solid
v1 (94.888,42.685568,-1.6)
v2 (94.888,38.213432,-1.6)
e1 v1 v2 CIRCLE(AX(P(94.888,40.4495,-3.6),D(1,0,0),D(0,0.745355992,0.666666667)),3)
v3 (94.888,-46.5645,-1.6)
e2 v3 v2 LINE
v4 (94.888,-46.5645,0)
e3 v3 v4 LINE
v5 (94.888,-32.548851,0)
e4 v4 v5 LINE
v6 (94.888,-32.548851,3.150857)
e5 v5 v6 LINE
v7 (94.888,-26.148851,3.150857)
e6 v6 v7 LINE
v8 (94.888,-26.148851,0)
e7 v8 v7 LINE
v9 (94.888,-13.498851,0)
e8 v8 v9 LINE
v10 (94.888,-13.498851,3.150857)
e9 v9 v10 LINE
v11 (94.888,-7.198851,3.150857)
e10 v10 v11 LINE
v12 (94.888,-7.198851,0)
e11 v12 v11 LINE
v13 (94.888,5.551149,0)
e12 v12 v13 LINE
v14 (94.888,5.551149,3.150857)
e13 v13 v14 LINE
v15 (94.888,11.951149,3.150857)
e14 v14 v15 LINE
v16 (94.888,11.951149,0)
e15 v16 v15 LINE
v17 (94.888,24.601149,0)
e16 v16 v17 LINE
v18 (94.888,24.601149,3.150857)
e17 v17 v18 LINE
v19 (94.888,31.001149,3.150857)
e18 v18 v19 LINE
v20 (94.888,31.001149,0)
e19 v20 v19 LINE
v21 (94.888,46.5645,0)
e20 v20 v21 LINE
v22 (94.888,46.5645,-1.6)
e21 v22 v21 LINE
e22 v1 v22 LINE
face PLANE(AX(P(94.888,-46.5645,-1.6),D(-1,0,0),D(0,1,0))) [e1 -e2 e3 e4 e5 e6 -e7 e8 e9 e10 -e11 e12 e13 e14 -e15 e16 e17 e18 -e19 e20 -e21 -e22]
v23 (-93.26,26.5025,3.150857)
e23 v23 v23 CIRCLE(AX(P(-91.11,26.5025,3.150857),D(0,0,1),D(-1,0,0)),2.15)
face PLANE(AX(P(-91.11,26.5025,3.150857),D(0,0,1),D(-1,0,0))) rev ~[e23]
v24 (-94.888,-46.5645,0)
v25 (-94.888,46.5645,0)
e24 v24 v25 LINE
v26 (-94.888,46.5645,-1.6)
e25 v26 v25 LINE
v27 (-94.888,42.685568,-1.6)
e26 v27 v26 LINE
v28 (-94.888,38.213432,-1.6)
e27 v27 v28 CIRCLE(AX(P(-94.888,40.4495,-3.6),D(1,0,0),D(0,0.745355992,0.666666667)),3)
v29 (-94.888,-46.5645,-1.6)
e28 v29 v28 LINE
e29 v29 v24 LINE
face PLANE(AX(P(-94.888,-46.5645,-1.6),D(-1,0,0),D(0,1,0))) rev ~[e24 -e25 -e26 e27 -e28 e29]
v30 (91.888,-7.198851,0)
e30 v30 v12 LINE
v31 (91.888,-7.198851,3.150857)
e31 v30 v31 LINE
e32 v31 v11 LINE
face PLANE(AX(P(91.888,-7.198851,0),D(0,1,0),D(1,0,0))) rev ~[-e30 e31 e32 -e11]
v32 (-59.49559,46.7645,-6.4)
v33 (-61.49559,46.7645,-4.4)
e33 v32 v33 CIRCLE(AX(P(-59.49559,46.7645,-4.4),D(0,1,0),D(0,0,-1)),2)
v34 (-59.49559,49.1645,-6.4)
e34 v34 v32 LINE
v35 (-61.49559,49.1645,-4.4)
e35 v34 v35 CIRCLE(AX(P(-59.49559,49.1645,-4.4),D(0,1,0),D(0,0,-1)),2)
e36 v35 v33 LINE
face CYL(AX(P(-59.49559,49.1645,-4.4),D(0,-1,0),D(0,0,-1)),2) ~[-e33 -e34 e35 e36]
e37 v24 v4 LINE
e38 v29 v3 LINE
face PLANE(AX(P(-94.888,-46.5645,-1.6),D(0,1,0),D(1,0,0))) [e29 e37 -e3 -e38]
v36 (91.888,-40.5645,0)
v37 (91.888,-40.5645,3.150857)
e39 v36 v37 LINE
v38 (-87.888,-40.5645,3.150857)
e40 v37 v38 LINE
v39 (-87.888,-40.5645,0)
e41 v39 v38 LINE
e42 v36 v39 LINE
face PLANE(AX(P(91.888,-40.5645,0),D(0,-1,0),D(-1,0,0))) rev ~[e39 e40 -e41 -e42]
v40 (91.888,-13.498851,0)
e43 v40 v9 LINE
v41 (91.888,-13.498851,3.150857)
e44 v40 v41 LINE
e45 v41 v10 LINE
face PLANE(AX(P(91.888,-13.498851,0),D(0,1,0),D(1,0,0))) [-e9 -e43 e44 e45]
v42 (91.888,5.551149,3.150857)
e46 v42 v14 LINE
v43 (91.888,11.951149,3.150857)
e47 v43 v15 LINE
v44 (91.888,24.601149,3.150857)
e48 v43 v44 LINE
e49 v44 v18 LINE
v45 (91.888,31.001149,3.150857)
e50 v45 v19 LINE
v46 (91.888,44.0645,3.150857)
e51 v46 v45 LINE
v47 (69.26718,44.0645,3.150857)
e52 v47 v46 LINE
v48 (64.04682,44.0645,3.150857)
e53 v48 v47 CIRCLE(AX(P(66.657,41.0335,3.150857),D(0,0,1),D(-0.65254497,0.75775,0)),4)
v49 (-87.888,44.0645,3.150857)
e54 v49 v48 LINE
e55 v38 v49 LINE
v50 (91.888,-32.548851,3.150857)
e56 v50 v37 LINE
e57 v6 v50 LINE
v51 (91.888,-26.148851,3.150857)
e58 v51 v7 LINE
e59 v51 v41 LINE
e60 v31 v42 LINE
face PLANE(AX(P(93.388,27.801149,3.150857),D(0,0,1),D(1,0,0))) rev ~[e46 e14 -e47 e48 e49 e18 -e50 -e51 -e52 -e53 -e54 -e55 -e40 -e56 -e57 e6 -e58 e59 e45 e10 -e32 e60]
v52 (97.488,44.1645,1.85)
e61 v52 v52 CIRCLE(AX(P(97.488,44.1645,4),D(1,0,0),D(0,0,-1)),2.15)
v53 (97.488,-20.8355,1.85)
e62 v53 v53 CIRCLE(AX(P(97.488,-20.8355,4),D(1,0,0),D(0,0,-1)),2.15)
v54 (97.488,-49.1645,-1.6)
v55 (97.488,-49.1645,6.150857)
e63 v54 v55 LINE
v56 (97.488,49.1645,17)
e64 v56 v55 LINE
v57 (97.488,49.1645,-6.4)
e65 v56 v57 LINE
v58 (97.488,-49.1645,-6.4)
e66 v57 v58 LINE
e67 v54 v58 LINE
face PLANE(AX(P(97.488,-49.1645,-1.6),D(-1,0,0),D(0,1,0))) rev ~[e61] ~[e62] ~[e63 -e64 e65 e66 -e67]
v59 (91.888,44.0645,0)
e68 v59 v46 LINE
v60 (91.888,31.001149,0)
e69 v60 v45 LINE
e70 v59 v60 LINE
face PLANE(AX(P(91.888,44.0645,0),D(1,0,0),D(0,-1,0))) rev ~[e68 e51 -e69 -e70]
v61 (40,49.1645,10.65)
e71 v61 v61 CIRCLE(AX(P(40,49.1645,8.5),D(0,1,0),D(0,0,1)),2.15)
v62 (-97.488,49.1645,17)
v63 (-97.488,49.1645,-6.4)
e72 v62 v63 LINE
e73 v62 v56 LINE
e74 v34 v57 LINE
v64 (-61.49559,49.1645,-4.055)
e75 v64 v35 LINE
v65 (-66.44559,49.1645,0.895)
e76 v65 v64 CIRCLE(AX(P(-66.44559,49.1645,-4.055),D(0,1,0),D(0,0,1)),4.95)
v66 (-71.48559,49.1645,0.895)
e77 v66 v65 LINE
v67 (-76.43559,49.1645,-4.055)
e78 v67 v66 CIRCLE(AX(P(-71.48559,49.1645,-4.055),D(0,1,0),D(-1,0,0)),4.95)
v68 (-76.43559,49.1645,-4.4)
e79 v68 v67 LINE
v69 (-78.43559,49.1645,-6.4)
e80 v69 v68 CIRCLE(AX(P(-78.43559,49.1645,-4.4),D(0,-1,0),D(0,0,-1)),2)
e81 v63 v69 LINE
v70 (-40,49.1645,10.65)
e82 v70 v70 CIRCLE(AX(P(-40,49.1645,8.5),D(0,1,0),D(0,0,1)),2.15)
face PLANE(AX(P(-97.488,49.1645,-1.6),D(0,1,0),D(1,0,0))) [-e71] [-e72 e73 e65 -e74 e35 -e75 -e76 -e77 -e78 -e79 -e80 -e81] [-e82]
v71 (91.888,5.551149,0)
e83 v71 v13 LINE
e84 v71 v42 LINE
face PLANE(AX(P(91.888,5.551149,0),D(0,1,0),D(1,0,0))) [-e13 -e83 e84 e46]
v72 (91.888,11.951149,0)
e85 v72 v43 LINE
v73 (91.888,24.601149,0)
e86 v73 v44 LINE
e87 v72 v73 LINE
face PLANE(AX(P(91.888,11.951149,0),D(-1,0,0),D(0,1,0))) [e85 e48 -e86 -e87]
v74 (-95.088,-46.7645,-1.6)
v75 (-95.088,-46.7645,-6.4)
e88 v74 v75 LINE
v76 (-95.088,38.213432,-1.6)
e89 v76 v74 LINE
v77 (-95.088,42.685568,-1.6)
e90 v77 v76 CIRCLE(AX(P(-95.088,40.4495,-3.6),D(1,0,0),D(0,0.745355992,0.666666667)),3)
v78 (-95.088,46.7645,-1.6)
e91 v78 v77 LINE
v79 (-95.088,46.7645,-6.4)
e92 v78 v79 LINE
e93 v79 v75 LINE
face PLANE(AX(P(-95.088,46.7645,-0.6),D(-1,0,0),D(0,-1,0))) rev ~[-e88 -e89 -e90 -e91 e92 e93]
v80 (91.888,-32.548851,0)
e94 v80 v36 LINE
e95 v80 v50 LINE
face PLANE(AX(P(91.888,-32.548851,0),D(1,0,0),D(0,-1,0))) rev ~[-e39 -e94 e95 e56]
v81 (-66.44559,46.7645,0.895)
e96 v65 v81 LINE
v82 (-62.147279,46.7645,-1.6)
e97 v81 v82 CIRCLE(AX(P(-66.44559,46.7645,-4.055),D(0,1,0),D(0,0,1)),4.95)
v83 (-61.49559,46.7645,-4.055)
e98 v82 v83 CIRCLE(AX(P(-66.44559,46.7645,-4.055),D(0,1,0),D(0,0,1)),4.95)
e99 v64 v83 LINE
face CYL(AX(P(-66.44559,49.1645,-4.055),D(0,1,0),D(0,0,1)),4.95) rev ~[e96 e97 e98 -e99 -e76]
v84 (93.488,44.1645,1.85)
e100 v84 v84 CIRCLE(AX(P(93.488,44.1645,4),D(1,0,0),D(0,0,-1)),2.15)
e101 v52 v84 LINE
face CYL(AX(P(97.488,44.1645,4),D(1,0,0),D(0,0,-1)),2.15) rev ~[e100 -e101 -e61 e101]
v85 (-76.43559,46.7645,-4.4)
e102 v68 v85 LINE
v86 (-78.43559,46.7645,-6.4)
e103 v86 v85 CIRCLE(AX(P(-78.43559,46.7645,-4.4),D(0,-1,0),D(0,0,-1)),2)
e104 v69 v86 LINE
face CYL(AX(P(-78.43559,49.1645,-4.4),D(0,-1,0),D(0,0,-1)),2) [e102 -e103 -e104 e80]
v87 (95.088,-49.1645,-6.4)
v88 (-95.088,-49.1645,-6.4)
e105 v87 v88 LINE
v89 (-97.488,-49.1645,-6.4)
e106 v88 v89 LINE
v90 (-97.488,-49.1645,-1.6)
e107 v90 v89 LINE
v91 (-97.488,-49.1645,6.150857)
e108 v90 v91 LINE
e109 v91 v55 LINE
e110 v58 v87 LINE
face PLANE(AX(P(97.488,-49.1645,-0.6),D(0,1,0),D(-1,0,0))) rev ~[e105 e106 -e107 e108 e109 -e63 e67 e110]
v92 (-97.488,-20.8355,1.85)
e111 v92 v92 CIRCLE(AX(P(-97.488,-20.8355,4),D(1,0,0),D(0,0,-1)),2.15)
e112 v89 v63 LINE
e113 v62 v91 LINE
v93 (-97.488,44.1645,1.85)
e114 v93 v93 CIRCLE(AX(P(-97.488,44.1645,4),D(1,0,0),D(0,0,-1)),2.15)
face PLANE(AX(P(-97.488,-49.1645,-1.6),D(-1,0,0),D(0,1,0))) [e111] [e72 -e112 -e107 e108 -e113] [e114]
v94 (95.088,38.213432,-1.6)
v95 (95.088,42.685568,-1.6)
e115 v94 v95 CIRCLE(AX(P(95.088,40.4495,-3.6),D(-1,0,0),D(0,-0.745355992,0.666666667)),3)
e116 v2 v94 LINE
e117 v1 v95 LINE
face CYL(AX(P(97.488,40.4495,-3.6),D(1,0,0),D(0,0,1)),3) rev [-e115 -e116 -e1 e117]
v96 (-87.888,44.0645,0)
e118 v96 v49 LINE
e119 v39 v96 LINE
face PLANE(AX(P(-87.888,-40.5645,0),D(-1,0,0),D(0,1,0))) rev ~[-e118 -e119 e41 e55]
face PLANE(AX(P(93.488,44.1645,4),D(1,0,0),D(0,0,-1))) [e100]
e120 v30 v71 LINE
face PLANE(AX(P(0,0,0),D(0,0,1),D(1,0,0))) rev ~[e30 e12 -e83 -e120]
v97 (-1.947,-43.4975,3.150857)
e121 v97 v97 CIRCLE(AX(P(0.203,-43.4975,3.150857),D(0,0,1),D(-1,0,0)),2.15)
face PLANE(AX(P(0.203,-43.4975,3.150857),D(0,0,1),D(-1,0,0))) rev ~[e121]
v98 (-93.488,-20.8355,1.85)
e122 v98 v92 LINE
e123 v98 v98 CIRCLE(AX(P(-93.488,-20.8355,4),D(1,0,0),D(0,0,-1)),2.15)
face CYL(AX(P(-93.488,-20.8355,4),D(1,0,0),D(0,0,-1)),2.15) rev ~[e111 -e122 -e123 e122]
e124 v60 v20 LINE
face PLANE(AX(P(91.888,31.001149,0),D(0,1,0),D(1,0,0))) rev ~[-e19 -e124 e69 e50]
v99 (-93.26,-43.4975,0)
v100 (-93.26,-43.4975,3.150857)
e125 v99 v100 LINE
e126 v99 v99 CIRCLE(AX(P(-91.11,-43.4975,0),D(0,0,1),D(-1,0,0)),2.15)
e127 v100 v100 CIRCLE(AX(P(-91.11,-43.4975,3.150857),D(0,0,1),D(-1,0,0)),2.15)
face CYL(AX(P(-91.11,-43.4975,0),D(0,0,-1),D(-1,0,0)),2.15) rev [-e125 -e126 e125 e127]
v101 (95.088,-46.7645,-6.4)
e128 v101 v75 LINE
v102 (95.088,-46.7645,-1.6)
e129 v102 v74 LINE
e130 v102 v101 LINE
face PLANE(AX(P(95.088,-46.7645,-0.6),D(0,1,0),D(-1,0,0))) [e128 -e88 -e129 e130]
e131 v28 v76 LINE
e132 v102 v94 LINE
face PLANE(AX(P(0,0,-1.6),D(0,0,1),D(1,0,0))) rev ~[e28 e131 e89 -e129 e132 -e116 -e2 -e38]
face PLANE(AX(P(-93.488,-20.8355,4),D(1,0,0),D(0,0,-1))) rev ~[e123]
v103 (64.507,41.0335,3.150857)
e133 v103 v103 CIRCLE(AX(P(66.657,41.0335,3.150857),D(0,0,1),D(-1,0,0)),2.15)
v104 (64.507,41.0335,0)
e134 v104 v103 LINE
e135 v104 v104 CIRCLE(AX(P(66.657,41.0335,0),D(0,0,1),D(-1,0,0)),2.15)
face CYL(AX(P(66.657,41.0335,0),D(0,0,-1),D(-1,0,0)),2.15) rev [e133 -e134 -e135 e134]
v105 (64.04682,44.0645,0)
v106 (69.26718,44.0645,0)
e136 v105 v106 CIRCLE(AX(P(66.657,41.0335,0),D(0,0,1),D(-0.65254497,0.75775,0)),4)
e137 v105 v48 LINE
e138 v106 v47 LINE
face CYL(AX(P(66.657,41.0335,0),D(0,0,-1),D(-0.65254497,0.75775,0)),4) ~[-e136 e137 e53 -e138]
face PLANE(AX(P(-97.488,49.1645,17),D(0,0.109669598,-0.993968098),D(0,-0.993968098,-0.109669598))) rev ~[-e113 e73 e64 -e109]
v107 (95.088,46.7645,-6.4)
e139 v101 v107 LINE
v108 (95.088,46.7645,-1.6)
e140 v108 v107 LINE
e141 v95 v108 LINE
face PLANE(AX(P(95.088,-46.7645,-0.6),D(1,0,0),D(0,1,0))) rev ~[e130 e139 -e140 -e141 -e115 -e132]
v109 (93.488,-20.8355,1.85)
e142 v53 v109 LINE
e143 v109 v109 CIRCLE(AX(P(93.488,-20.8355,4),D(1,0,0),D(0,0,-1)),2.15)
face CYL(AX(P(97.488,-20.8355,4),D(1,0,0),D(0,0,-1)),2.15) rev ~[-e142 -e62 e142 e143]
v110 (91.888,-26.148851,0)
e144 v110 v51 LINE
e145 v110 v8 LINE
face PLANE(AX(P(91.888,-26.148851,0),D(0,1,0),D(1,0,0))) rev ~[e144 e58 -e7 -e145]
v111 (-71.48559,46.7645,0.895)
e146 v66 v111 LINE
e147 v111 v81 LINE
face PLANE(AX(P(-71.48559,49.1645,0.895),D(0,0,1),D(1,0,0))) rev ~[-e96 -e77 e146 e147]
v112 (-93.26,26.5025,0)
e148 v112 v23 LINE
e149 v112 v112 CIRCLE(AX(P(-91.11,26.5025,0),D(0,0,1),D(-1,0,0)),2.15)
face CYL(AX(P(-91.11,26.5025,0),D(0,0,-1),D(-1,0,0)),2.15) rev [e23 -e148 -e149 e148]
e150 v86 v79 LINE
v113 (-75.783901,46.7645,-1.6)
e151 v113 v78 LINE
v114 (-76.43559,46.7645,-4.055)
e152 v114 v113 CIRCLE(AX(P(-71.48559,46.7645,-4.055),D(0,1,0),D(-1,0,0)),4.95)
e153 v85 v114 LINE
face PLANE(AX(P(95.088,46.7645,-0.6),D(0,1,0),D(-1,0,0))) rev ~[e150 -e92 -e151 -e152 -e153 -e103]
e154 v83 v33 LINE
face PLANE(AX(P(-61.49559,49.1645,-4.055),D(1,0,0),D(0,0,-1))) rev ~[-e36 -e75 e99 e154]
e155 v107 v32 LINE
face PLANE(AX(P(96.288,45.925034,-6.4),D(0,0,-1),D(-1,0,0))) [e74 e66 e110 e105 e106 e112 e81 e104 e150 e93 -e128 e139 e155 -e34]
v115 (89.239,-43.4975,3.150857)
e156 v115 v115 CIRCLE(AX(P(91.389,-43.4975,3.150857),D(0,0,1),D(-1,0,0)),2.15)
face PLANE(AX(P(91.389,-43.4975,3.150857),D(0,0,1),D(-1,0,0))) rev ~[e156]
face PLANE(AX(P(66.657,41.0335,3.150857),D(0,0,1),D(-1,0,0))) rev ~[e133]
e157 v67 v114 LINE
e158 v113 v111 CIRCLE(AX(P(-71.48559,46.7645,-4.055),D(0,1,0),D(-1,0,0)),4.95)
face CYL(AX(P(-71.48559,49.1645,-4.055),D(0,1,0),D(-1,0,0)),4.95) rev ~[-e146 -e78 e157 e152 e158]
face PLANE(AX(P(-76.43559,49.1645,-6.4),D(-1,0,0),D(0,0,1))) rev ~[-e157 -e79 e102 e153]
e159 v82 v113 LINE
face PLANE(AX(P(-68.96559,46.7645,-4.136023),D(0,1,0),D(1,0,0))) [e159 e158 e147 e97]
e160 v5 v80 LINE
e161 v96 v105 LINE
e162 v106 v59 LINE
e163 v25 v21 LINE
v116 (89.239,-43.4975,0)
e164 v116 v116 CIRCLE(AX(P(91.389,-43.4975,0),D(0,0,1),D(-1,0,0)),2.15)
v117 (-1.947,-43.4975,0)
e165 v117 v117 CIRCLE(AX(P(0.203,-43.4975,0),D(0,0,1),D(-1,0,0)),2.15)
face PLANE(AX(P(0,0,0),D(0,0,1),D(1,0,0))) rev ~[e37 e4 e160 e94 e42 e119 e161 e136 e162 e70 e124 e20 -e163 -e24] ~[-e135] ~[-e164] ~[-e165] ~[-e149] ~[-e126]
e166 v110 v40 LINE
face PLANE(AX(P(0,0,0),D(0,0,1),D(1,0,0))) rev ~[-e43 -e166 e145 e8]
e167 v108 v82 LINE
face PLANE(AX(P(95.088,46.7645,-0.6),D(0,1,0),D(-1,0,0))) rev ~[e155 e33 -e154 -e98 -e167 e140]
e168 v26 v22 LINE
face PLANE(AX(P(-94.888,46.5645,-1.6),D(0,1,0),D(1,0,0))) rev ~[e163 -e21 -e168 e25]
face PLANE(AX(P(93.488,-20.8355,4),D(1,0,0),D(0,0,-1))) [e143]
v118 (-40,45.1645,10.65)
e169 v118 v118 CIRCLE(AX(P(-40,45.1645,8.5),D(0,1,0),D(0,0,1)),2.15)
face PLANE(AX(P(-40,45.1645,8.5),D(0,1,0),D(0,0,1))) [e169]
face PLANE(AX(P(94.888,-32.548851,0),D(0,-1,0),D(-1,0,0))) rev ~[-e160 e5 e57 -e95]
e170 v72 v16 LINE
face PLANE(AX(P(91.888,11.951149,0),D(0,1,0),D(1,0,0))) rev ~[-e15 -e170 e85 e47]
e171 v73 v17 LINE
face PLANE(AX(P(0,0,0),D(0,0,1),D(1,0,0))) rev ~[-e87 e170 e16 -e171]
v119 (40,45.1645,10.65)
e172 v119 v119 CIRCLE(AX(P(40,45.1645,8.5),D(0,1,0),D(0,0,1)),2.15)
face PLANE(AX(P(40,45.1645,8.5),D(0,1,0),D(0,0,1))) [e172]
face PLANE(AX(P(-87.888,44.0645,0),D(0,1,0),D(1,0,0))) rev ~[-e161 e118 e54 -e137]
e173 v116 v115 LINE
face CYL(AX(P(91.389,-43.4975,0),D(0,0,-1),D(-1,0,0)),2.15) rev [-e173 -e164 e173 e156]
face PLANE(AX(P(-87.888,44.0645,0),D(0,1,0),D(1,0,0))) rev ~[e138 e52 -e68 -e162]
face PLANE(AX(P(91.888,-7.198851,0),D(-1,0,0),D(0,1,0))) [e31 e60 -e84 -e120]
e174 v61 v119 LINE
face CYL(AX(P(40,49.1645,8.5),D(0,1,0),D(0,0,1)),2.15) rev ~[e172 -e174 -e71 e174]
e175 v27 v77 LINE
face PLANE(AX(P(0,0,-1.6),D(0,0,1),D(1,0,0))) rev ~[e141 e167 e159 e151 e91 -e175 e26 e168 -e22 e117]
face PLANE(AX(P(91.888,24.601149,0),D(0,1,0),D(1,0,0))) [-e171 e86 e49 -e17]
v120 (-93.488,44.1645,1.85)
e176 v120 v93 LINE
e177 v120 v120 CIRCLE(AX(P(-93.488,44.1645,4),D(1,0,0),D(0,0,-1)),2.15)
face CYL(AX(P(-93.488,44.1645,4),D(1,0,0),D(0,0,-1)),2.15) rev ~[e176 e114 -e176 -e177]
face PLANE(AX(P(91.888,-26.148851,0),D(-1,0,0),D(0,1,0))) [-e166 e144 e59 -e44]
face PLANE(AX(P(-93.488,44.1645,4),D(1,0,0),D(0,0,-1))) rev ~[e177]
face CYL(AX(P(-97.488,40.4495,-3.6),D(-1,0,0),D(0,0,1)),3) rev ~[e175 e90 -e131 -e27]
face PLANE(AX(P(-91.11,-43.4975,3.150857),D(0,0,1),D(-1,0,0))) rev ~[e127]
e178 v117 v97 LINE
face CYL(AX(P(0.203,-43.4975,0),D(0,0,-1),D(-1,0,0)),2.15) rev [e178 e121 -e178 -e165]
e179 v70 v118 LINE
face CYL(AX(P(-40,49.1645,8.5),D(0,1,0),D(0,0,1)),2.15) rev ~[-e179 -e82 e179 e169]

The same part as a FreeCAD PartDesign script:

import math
import FreeCAD as App
import Part
import Sketcher

V = App.Vector
Q = App.Units.Quantity


def edges_at(feature, points):
    """Names of the edges that pass closest to the given points."""
    edges = feature.Shape.Edges
    near = lambda p: min(range(len(edges)), key=lambda i: edges[i].distToShape(Part.Vertex(*p))[0])
    return sorted({f"Edge{near(p) + 1}" for p in points})


def add_polygon(sketch, points):
    """Adds a closed chain of lines whose ends are joined by coincident constraints."""
    first, n = sketch.GeometryCount, len(points)
    for a, b in zip(points, points[1:] + points[:1]):
        sketch.addGeometry(Part.LineSegment(App.Vector(*a, 0), App.Vector(*b, 0)), False)
    for i in range(n):
        sketch.addConstraint(Sketcher.Constraint("Coincident", first + i, 2, first + (i + 1) % n, 1))

doc = App.newDocument("Part")
body = doc.addObject("PartDesign::Body", "Body")
body.AllowCompound = True

sketch1 = body.newObject("Sketcher::SketchObject", "Sketch")
sketch1.AttachmentSupport = (doc.getObject("XY_Plane"), [""])
sketch1.MapMode = "FlatFace"
sketch1.addGeometry(Part.LineSegment(V(94.888, 46.5645, 0), V(-94.888, 46.5645, 0)), False)
sketch1.addGeometry(Part.LineSegment(V(-94.888, 46.5645, 0), V(-94.888, -46.5645, 0)), False)
sketch1.addGeometry(Part.LineSegment(V(-94.888, -46.5645, 0), V(94.888, -46.5645, 0)), False)
sketch1.addGeometry(Part.LineSegment(V(94.888, -46.5645, 0), V(94.888, -32.548851, 0)), False)
sketch1.addGeometry(Part.LineSegment(V(94.888, -32.548851, 0), V(91.888, -32.548851, 0)), False)
sketch1.addGeometry(Part.LineSegment(V(91.888, -32.548851, 0), V(91.888, -40.5645, 0)), False)
sketch1.addGeometry(Part.LineSegment(V(91.888, -40.5645, 0), V(-87.888, -40.5645, 0)), False)
sketch1.addGeometry(Part.LineSegment(V(-87.888, -40.5645, 0), V(-87.888, 44.0645, 0)), False)
sketch1.addGeometry(Part.LineSegment(V(-87.888, 44.0645, 0), V(64.04682, 44.0645, 0)), False)
sketch1.addGeometry(Part.ArcOfCircle(Part.Circle(V(66.657, 41.0335, 0), V(0, 0, 1), 4), math.radians(130.733758), math.radians(409.266242)), False)
sketch1.addGeometry(Part.LineSegment(V(69.26718, 44.0645, 0), V(91.888, 44.0645, 0)), False)
sketch1.addGeometry(Part.LineSegment(V(91.888, 44.0645, 0), V(91.888, 31.001149, 0)), False)
sketch1.addGeometry(Part.LineSegment(V(91.888, 31.001149, 0), V(94.888, 31.001149, 0)), False)
sketch1.addGeometry(Part.LineSegment(V(94.888, 31.001149, 0), V(94.888, 46.5645, 0)), False)
sketch1.addGeometry(Part.Circle(V(-91.11, -43.4975, 0), V(0, 0, 1), 2.15), False)
sketch1.addGeometry(Part.Circle(V(0.203, -43.4975, 0), V(0, 0, 1), 2.15), False)
sketch1.addGeometry(Part.Circle(V(91.389, -43.4975, 0), V(0, 0, 1), 2.15), False)
sketch1.addGeometry(Part.Circle(V(-91.11, 26.5025, 0), V(0, 0, 1), 2.15), False)
sketch1.addGeometry(Part.Circle(V(66.657, 41.0335, 0), V(0, 0, 1), 2.15), False)
add_polygon(sketch1, [(91.888, 24.601149), (91.888, 11.951149), (94.888, 11.951149), (94.888, 24.601149)])
add_polygon(sketch1, [(91.888, 5.551149), (91.888, -7.198851), (94.888, -7.198851), (94.888, 5.551149)])
add_polygon(sketch1, [(91.888, -13.498851), (91.888, -26.148851), (94.888, -26.148851), (94.888, -13.498851)])
sketch1.addConstraint(Sketcher.Constraint("Coincident", 0, 2, 1, 1))
sketch1.addConstraint(Sketcher.Constraint("Coincident", 1, 2, 2, 1))
sketch1.addConstraint(Sketcher.Constraint("Coincident", 2, 2, 3, 1))
sketch1.addConstraint(Sketcher.Constraint("Coincident", 3, 2, 4, 1))
sketch1.addConstraint(Sketcher.Constraint("Coincident", 4, 2, 5, 1))
sketch1.addConstraint(Sketcher.Constraint("Coincident", 5, 2, 6, 1))
sketch1.addConstraint(Sketcher.Constraint("Coincident", 6, 2, 7, 1))
sketch1.addConstraint(Sketcher.Constraint("Coincident", 7, 2, 8, 1))
sketch1.addConstraint(Sketcher.Constraint("Coincident", 8, 2, 9, 1))
sketch1.addConstraint(Sketcher.Constraint("Coincident", 9, 2, 10, 1))
sketch1.addConstraint(Sketcher.Constraint("Coincident", 10, 2, 11, 1))
sketch1.addConstraint(Sketcher.Constraint("Coincident", 11, 2, 12, 1))
sketch1.addConstraint(Sketcher.Constraint("Coincident", 12, 2, 13, 1))
sketch1.addConstraint(Sketcher.Constraint("Coincident", 13, 2, 0, 1))
sketch1.addConstraint(Sketcher.Constraint("Horizontal", 0))
sketch1.addConstraint(Sketcher.Constraint("Vertical", 1))
sketch1.addConstraint(Sketcher.Constraint("Horizontal", 2))
sketch1.addConstraint(Sketcher.Constraint("Vertical", 3))
sketch1.addConstraint(Sketcher.Constraint("Horizontal", 4))
sketch1.addConstraint(Sketcher.Constraint("Vertical", 5))
sketch1.addConstraint(Sketcher.Constraint("Horizontal", 6))
sketch1.addConstraint(Sketcher.Constraint("Vertical", 7))
sketch1.addConstraint(Sketcher.Constraint("Horizontal", 8))
sketch1.addConstraint(Sketcher.Constraint("Horizontal", 10))
sketch1.addConstraint(Sketcher.Constraint("Vertical", 11))
sketch1.addConstraint(Sketcher.Constraint("Horizontal", 12))
sketch1.addConstraint(Sketcher.Constraint("Vertical", 13))
sketch1.addConstraint(Sketcher.Constraint("Vertical", 19))
sketch1.addConstraint(Sketcher.Constraint("Horizontal", 20))
sketch1.addConstraint(Sketcher.Constraint("Vertical", 21))
sketch1.addConstraint(Sketcher.Constraint("Horizontal", 22))
sketch1.addConstraint(Sketcher.Constraint("Vertical", 23))
sketch1.addConstraint(Sketcher.Constraint("Horizontal", 24))
sketch1.addConstraint(Sketcher.Constraint("Vertical", 25))
sketch1.addConstraint(Sketcher.Constraint("Horizontal", 26))
sketch1.addConstraint(Sketcher.Constraint("Vertical", 27))
sketch1.addConstraint(Sketcher.Constraint("Horizontal", 28))
sketch1.addConstraint(Sketcher.Constraint("Vertical", 29))
sketch1.addConstraint(Sketcher.Constraint("Horizontal", 30))
sketch1.addConstraint(Sketcher.Constraint("Coincident", 18, 3, 9, 3))
sketch1.addConstraint(Sketcher.Constraint("Equal", 14, 15))
sketch1.addConstraint(Sketcher.Constraint("Equal", 15, 16))
sketch1.addConstraint(Sketcher.Constraint("Equal", 16, 17))
sketch1.addConstraint(Sketcher.Constraint("Equal", 17, 18))
sketch1.addConstraint(Sketcher.Constraint("Symmetric", 0, 2, 2, 2, -1, 1))
sketch1.addConstraint(Sketcher.Constraint("Horizontal", 14, 3, 15, 3))
sketch1.addConstraint(Sketcher.Constraint("Horizontal", 15, 3, 16, 3))
sketch1.addConstraint(Sketcher.Constraint("Horizontal", 8, 2, 9, 2))
sketch1.addConstraint(Sketcher.Constraint("Vertical", 14, 3, 17, 3))
sketch1.addConstraint(Sketcher.Constraint("Vertical", 5, 2, 10, 2))
sketch1.addConstraint(Sketcher.Constraint("Vertical", 3, 2, 12, 2))
sketch1.addConstraint(Sketcher.Constraint("Vertical", 11, 2, 19, 2))
sketch1.addConstraint(Sketcher.Constraint("Vertical", 13, 2, 20, 2))
sketch1.addConstraint(Sketcher.Constraint("Vertical", 22, 2, 23, 2))
sketch1.addConstraint(Sketcher.Constraint("Vertical", 21, 2, 24, 2))
sketch1.addConstraint(Sketcher.Constraint("Vertical", 26, 2, 27, 2))
sketch1.addConstraint(Sketcher.Constraint("Vertical", 25, 2, 28, 2))
sketch1.addConstraint(Sketcher.Constraint("Equal", 21, 27))
sketch1.addConstraint(Sketcher.Constraint("Radius", 9, Q("4 mm")))
sketch1.addConstraint(Sketcher.Constraint("Diameter", 14, Q("4.3 mm")))
sketch1.addConstraint(Sketcher.Constraint("DistanceX", 4, 2, 4, 1, Q("3 mm")))
sketch1.addConstraint(Sketcher.Constraint("DistanceY", 14, 3, 17, 3, Q("70 mm")))
sketch1.addConstraint(Sketcher.Constraint("DistanceY", 2, 2, 5, 2, Q("6 mm")))
sketch1.addConstraint(Sketcher.Constraint("DistanceX", 1, 2, 6, 2, Q("7 mm")))
sketch1.addConstraint(Sketcher.Constraint("DistanceY", 19, 2, 19, 1, Q("12.65 mm")))
sketch1.addConstraint(Sketcher.Constraint("DistanceY", 23, 2, 23, 1, Q("12.75 mm")))
sketch1.addConstraint(Sketcher.Constraint("DistanceY", 7, 2, 0, 2, Q("2.5 mm")))
sketch1.addConstraint(Sketcher.Constraint("DistanceY", 21, 2, 12, 2, Q("6.4 mm")))
sketch1.addConstraint(Sketcher.Constraint("DistanceY", 23, 2, 22, 2, Q("31.8 mm")))
sketch1.addConstraint(Sketcher.Constraint("DistanceY", 4, 2, 27, 2, Q("6.4 mm")))
sketch1.addConstraint(Sketcher.Constraint("DistanceY", 29, 2, 24, 2, Q("6.3 mm")))
sketch1.addConstraint(Sketcher.Constraint("DistanceX", 0, 2, 0, 1, Q("189.776 mm")))
sketch1.addConstraint(Sketcher.Constraint("DistanceY", 1, 2, 1, 1, Q("93.129 mm")))
sketch1.addConstraint(Sketcher.Constraint("DistanceX", 14, 3, -1, 1, Q("91.11 mm")))
sketch1.addConstraint(Sketcher.Constraint("DistanceX", -1, 1, 9, 3, Q("66.657 mm")))
sketch1.addConstraint(Sketcher.Constraint("DistanceX", -1, 1, 15, 3, Q("0.203 mm")))
sketch1.addConstraint(Sketcher.Constraint("DistanceX", -1, 1, 16, 3, Q("91.389 mm")))
sketch1.addConstraint(Sketcher.Constraint("DistanceY", 14, 3, 9, 3, Q("84.531 mm")))
sketch1.addConstraint(Sketcher.Constraint("DistanceY", 17, 3, 0, 2, Q("20.062 mm")))
sketch1.addConstraint(Sketcher.Constraint("DistanceY", 3, 1, 3, 2, Q("14.015649 mm")))
pad1 = body.newObject("PartDesign::Pad", "Pad")
pad1.Profile = sketch1
pad1.Length = 3.150857

sketch2 = body.newObject("Sketcher::SketchObject", "Sketch001")
sketch2.AttachmentSupport = (doc.getObject("XY_Plane"), [""])
sketch2.MapMode = "FlatFace"
sketch2.AttachmentOffset = App.Placement(V(0, 0, 3.150857), App.Rotation())
add_polygon(sketch2, [(94.888, 46.5645), (-94.888, 46.5645), (-94.888, -46.5645), (94.888, -46.5645)])
sketch2.addConstraint(Sketcher.Constraint("Horizontal", 0))
sketch2.addConstraint(Sketcher.Constraint("Vertical", 1))
sketch2.addConstraint(Sketcher.Constraint("Horizontal", 2))
sketch2.addConstraint(Sketcher.Constraint("Vertical", 3))
sketch2.addConstraint(Sketcher.Constraint("Symmetric", 0, 2, 2, 2, -1, 1))
sketch2.addConstraint(Sketcher.Constraint("DistanceX", 0, 2, 0, 1, Q("189.776 mm")))
sketch2.addConstraint(Sketcher.Constraint("DistanceY", 1, 2, 1, 1, Q("93.129 mm")))
pad2 = body.newObject("PartDesign::Pad", "Pad001")
pad2.Profile = sketch2
pad2.Length = 3

sketch3 = body.newObject("Sketcher::SketchObject", "Sketch002")
sketch3.AttachmentSupport = (doc.getObject("XY_Plane"), [""])
sketch3.MapMode = "FlatFace"
add_polygon(sketch3, [(-97.488, 49.1645), (-97.488, -49.1645), (97.488, -49.1645), (97.488, 49.1645)])
add_polygon(sketch3, [(94.888, -46.5645), (-94.888, -46.5645), (-94.888, 46.5645), (94.888, 46.5645)])
sketch3.addConstraint(Sketcher.Constraint("Vertical", 0))
sketch3.addConstraint(Sketcher.Constraint("Horizontal", 1))
sketch3.addConstraint(Sketcher.Constraint("Vertical", 2))
sketch3.addConstraint(Sketcher.Constraint("Horizontal", 3))
sketch3.addConstraint(Sketcher.Constraint("Horizontal", 4))
sketch3.addConstraint(Sketcher.Constraint("Vertical", 5))
sketch3.addConstraint(Sketcher.Constraint("Horizontal", 6))
sketch3.addConstraint(Sketcher.Constraint("Vertical", 7))
sketch3.addConstraint(Sketcher.Constraint("Symmetric", 0, 2, 2, 2, -1, 1))
sketch3.addConstraint(Sketcher.Constraint("Symmetric", 4, 2, 6, 2, -1, 1))
sketch3.addConstraint(Sketcher.Constraint("DistanceX", 0, 2, 4, 2, Q("2.6 mm")))
sketch3.addConstraint(Sketcher.Constraint("DistanceY", 0, 2, 4, 2, Q("2.6 mm")))
sketch3.addConstraint(Sketcher.Constraint("DistanceX", 1, 1, 1, 2, Q("194.976 mm")))
sketch3.addConstraint(Sketcher.Constraint("DistanceY", 0, 2, 0, 1, Q("98.329 mm")))
pad3 = body.newObject("PartDesign::Pad", "Pad002")
pad3.Profile = sketch3
pad3.Length = 6.150857

sketch4 = body.newObject("Sketcher::SketchObject", "Sketch003")
sketch4.AttachmentSupport = (doc.getObject("YZ_Plane"), [""])
sketch4.MapMode = "FlatFace"
sketch4.AttachmentOffset = App.Placement(V(0, 0, -97.488), App.Rotation())
add_polygon(sketch4, [(49.1645, 17), (49.1645, 6.150857), (-49.1645, 6.150857)])
sketch4.addConstraint(Sketcher.Constraint("Vertical", 0))
sketch4.addConstraint(Sketcher.Constraint("Horizontal", 1))
sketch4.addConstraint(Sketcher.Constraint("DistanceY", -1, 1, 2, 2, Q("17 mm")))
sketch4.addConstraint(Sketcher.Constraint("DistanceX", 1, 2, 1, 1, Q("98.329 mm")))
sketch4.addConstraint(Sketcher.Constraint("DistanceX", -1, 1, 0, 2, Q("49.1645 mm")))
sketch4.addConstraint(Sketcher.Constraint("Distance", 2, Q("98.92571 mm")))
pad4 = body.newObject("PartDesign::Pad", "Pad003")
pad4.Profile = sketch4
pad4.Length = 194.976

sketch5 = body.newObject("Sketcher::SketchObject", "Sketch004")
sketch5.AttachmentSupport = (doc.getObject("XZ_Plane"), [""])
sketch5.MapMode = "FlatFace"
sketch5.AttachmentOffset = App.Placement(V(0, 0, -49.1645), App.Rotation())
sketch5.addGeometry(Part.Circle(V(-40, 8.5, 0), V(0, 0, 1), 2.15), False)
sketch5.addGeometry(Part.Circle(V(40, 8.5, 0), V(0, 0, 1), 2.15), False)
sketch5.addConstraint(Sketcher.Constraint("Equal", 0, 1))
sketch5.addConstraint(Sketcher.Constraint("Symmetric", 0, 3, 1, 3, -2))
sketch5.addConstraint(Sketcher.Constraint("Diameter", 0, Q("4.3 mm")))
sketch5.addConstraint(Sketcher.Constraint("DistanceX", 0, 3, -1, 1, Q("40 mm")))
sketch5.addConstraint(Sketcher.Constraint("DistanceY", -1, 1, 0, 3, Q("8.5 mm")))
pocket1 = body.newObject("PartDesign::Pocket", "Pocket")
pocket1.Profile = sketch5
pocket1.Length = 4
pocket1.Reversed = True

sketch6 = body.newObject("Sketcher::SketchObject", "Sketch005")
sketch6.AttachmentSupport = (doc.getObject("YZ_Plane"), [""])
sketch6.MapMode = "FlatFace"
sketch6.AttachmentOffset = App.Placement(V(0, 0, 97.488), App.Rotation())
sketch6.addGeometry(Part.Circle(V(44.1645, 4, 0), V(0, 0, 1), 2.15), False)
sketch6.addGeometry(Part.Circle(V(-20.8355, 4, 0), V(0, 0, 1), 2.15), False)
sketch6.addConstraint(Sketcher.Constraint("Equal", 0, 1))
sketch6.addConstraint(Sketcher.Constraint("Horizontal", 0, 3, 1, 3))
sketch6.addConstraint(Sketcher.Constraint("Diameter", 0, Q("4.3 mm")))
sketch6.addConstraint(Sketcher.Constraint("DistanceY", -1, 1, 0, 3, Q("4 mm")))
sketch6.addConstraint(Sketcher.Constraint("DistanceX", 1, 3, 0, 3, Q("65 mm")))
sketch6.addConstraint(Sketcher.Constraint("DistanceX", -1, 1, 0, 3, Q("44.1645 mm")))
pocket2 = body.newObject("PartDesign::Pocket", "Pocket001")
pocket2.Profile = sketch6
pocket2.Length = 4

sketch7 = body.newObject("Sketcher::SketchObject", "Sketch006")
sketch7.AttachmentSupport = (doc.getObject("YZ_Plane"), [""])
sketch7.MapMode = "FlatFace"
sketch7.AttachmentOffset = App.Placement(V(0, 0, -93.488), App.Rotation())
sketch7.addGeometry(Part.Circle(V(44.1645, 4, 0), V(0, 0, 1), 2.15), False)
sketch7.addGeometry(Part.Circle(V(-20.8355, 4, 0), V(0, 0, 1), 2.15), False)
sketch7.addConstraint(Sketcher.Constraint("Equal", 0, 1))
sketch7.addConstraint(Sketcher.Constraint("Horizontal", 0, 3, 1, 3))
sketch7.addConstraint(Sketcher.Constraint("Diameter", 0, Q("4.3 mm")))
sketch7.addConstraint(Sketcher.Constraint("DistanceY", -1, 1, 0, 3, Q("4 mm")))
sketch7.addConstraint(Sketcher.Constraint("DistanceX", 1, 3, 0, 3, Q("65 mm")))
sketch7.addConstraint(Sketcher.Constraint("DistanceX", -1, 1, 0, 3, Q("44.1645 mm")))
pocket3 = body.newObject("PartDesign::Pocket", "Pocket002")
pocket3.Profile = sketch7
pocket3.Length = 4

sketch8 = body.newObject("Sketcher::SketchObject", "Sketch007")
sketch8.AttachmentSupport = (doc.getObject("XY_Plane"), [""])
sketch8.MapMode = "FlatFace"
sketch8.AttachmentOffset = App.Placement(V(0, 0, -1.6), App.Rotation())
add_polygon(sketch8, [(-97.488, 49.1645), (-97.488, -49.1645), (97.488, -49.1645), (97.488, 49.1645)])
add_polygon(sketch8, [(94.888, -46.5645), (-94.888, -46.5645), (-94.888, 46.5645), (94.888, 46.5645)])
sketch8.addConstraint(Sketcher.Constraint("Vertical", 0))
sketch8.addConstraint(Sketcher.Constraint("Horizontal", 1))
sketch8.addConstraint(Sketcher.Constraint("Vertical", 2))
sketch8.addConstraint(Sketcher.Constraint("Horizontal", 3))
sketch8.addConstraint(Sketcher.Constraint("Horizontal", 4))
sketch8.addConstraint(Sketcher.Constraint("Vertical", 5))
sketch8.addConstraint(Sketcher.Constraint("Horizontal", 6))
sketch8.addConstraint(Sketcher.Constraint("Vertical", 7))
sketch8.addConstraint(Sketcher.Constraint("Symmetric", 0, 2, 2, 2, -1, 1))
sketch8.addConstraint(Sketcher.Constraint("Symmetric", 4, 2, 6, 2, -1, 1))
sketch8.addConstraint(Sketcher.Constraint("DistanceX", 0, 2, 4, 2, Q("2.6 mm")))
sketch8.addConstraint(Sketcher.Constraint("DistanceY", 0, 2, 4, 2, Q("2.6 mm")))
sketch8.addConstraint(Sketcher.Constraint("DistanceX", 1, 1, 1, 2, Q("194.976 mm")))
sketch8.addConstraint(Sketcher.Constraint("DistanceY", 0, 2, 0, 1, Q("98.329 mm")))
pad5 = body.newObject("PartDesign::Pad", "Pad004")
pad5.Profile = sketch8
pad5.Length = 1.6

sketch9 = body.newObject("Sketcher::SketchObject", "Sketch008")
sketch9.AttachmentSupport = (doc.getObject("YZ_Plane"), [""])
sketch9.MapMode = "FlatFace"
sketch9.AttachmentOffset = App.Placement(V(0, 0, -97.488), App.Rotation())
sketch9.addGeometry(Part.Circle(V(40.4495, -3.6, 0), V(0, 0, 1), 3), False)
sketch9.addConstraint(Sketcher.Constraint("Diameter", 0, Q("6 mm")))
sketch9.addConstraint(Sketcher.Constraint("DistanceY", 0, 3, -1, 1, Q("3.6 mm")))
sketch9.addConstraint(Sketcher.Constraint("DistanceX", -1, 1, 0, 3, Q("40.4495 mm")))
pocket4 = body.newObject("PartDesign::Pocket", "Pocket003")
pocket4.Profile = sketch9
pocket4.Length = 2.6
pocket4.Reversed = True

sketch10 = body.newObject("Sketcher::SketchObject", "Sketch009")
sketch10.AttachmentSupport = (doc.getObject("YZ_Plane"), [""])
sketch10.MapMode = "FlatFace"
sketch10.AttachmentOffset = App.Placement(V(0, 0, 97.488), App.Rotation())
sketch10.addGeometry(Part.Circle(V(40.4495, -3.6, 0), V(0, 0, 1), 3), False)
sketch10.addConstraint(Sketcher.Constraint("Diameter", 0, Q("6 mm")))
sketch10.addConstraint(Sketcher.Constraint("DistanceY", 0, 3, -1, 1, Q("3.6 mm")))
sketch10.addConstraint(Sketcher.Constraint("DistanceX", -1, 1, 0, 3, Q("40.4495 mm")))
pocket5 = body.newObject("PartDesign::Pocket", "Pocket004")
pocket5.Profile = sketch10
pocket5.Length = 2.6

sketch11 = body.newObject("Sketcher::SketchObject", "Sketch010")
sketch11.AttachmentSupport = (doc.getObject("XY_Plane"), [""])
sketch11.MapMode = "FlatFace"
sketch11.AttachmentOffset = App.Placement(V(0, 0, -0.6), App.Rotation())
add_polygon(sketch11, [(97.488, 49.1645), (97.488, -49.1645), (95.088, -49.1645), (-95.088, -49.1645), (-97.488, -49.1645), (-97.488, 49.1645)])
add_polygon(sketch11, [(-95.088, -46.7645), (95.088, -46.7645), (95.088, 46.7645), (-95.088, 46.7645)])
sketch11.addConstraint(Sketcher.Constraint("Vertical", 0))
sketch11.addConstraint(Sketcher.Constraint("Horizontal", 1))
sketch11.addConstraint(Sketcher.Constraint("Horizontal", 2))
sketch11.addConstraint(Sketcher.Constraint("Horizontal", 3))
sketch11.addConstraint(Sketcher.Constraint("Vertical", 4))
sketch11.addConstraint(Sketcher.Constraint("Horizontal", 5))
sketch11.addConstraint(Sketcher.Constraint("Horizontal", 6))
sketch11.addConstraint(Sketcher.Constraint("Vertical", 7))
sketch11.addConstraint(Sketcher.Constraint("Horizontal", 8))
sketch11.addConstraint(Sketcher.Constraint("Vertical", 9))
sketch11.addConstraint(Sketcher.Constraint("Symmetric", 0, 2, 4, 2, -1, 1))
sketch11.addConstraint(Sketcher.Constraint("Symmetric", 6, 2, 8, 2, -1, 1))
sketch11.addConstraint(Sketcher.Constraint("Vertical", 1, 2, 6, 2))
sketch11.addConstraint(Sketcher.Constraint("Vertical", 2, 2, 8, 2))
sketch11.addConstraint(Sketcher.Constraint("DistanceX", 1, 2, 1, 1, Q("2.4 mm")))
sketch11.addConstraint(Sketcher.Constraint("DistanceY", 1, 2, 6, 2, Q("2.4 mm")))
sketch11.addConstraint(Sketcher.Constraint("DistanceX", 2, 2, 2, 1, Q("190.176 mm")))
sketch11.addConstraint(Sketcher.Constraint("DistanceY", 0, 2, 0, 1, Q("98.329 mm")))
pad6 = body.newObject("PartDesign::Pad", "Pad005")
pad6.Profile = sketch11
pad6.Length = 5.8
pad6.Reversed = True

sketch12 = body.newObject("Sketcher::SketchObject", "Sketch011")
sketch12.AttachmentSupport = (doc.getObject("XZ_Plane"), [""])
sketch12.MapMode = "FlatFace"
sketch12.AttachmentOffset = App.Placement(V(0, 0, -49.1645), App.Rotation())
sketch12.addGeometry(Part.LineSegment(V(-66.44559, -9.005, 0), V(-71.48559, -9.005, 0)), False)
sketch12.addGeometry(Part.ArcOfCircle(Part.Circle(V(-71.48559, -4.055, 0), V(0, 0, 1), 4.95), math.radians(-151.722828), math.radians(-90)), False)
sketch12.addGeometry(Part.LineSegment(V(-75.844888, -6.4, 0), V(-76.43559, -6.4, 0)), False)
sketch12.addGeometry(Part.LineSegment(V(-76.43559, -6.4, 0), V(-76.43559, -4.055, 0)), False)
sketch12.addGeometry(Part.ArcOfCircle(Part.Circle(V(-71.48559, -4.055, 0), V(0, 0, 1), 4.95), math.radians(90), math.radians(180)), False)
sketch12.addGeometry(Part.LineSegment(V(-71.48559, 0.895, 0), V(-66.44559, 0.895, 0)), False)
sketch12.addGeometry(Part.ArcOfCircle(Part.Circle(V(-66.44559, -4.055, 0), V(0, 0, 1), 4.95), math.radians(0), math.radians(90)), False)
sketch12.addGeometry(Part.LineSegment(V(-61.49559, -4.055, 0), V(-61.49559, -6.4, 0)), False)
sketch12.addGeometry(Part.LineSegment(V(-61.49559, -6.4, 0), V(-62.086292, -6.4, 0)), False)
sketch12.addGeometry(Part.ArcOfCircle(Part.Circle(V(-66.44559, -4.055, 0), V(0, 0, 1), 4.95), math.radians(-90), math.radians(-28.277172)), False)
sketch12.addConstraint(Sketcher.Constraint("Tangent", 0, 2, 1, 2))
sketch12.addConstraint(Sketcher.Constraint("Coincident", 1, 1, 2, 1))
sketch12.addConstraint(Sketcher.Constraint("Coincident", 2, 2, 3, 1))
sketch12.addConstraint(Sketcher.Constraint("Tangent", 3, 2, 4, 2))
sketch12.addConstraint(Sketcher.Constraint("Tangent", 4, 1, 5, 1))
sketch12.addConstraint(Sketcher.Constraint("Tangent", 5, 2, 6, 2))
sketch12.addConstraint(Sketcher.Constraint("Tangent", 6, 1, 7, 1))
sketch12.addConstraint(Sketcher.Constraint("Coincident", 7, 2, 8, 1))
sketch12.addConstraint(Sketcher.Constraint("Coincident", 8, 2, 9, 2))
sketch12.addConstraint(Sketcher.Constraint("Tangent", 9, 1, 0, 1))
sketch12.addConstraint(Sketcher.Constraint("Horizontal", 0))
sketch12.addConstraint(Sketcher.Constraint("Horizontal", 2))
sketch12.addConstraint(Sketcher.Constraint("Vertical", 3))
sketch12.addConstraint(Sketcher.Constraint("Horizontal", 5))
sketch12.addConstraint(Sketcher.Constraint("Vertical", 7))
sketch12.addConstraint(Sketcher.Constraint("Horizontal", 8))
sketch12.addConstraint(Sketcher.Constraint("Coincident", 4, 3, 1, 3))
sketch12.addConstraint(Sketcher.Constraint("Coincident", 9, 3, 6, 3))
sketch12.addConstraint(Sketcher.Constraint("Equal", 1, 4))
sketch12.addConstraint(Sketcher.Constraint("Equal", 4, 6))
sketch12.addConstraint(Sketcher.Constraint("Horizontal", 2, 2, 7, 2))
sketch12.addConstraint(Sketcher.Constraint("Radius", 1, Q("4.95 mm")))
sketch12.addConstraint(Sketcher.Constraint("DistanceX", 0, 2, 0, 1, Q("5.04 mm")))
sketch12.addConstraint(Sketcher.Constraint("DistanceY", 1, 1, -1, 1, Q("6.4 mm")))
sketch12.addConstraint(Sketcher.Constraint("DistanceY", 3, 1, 3, 2, Q("2.345 mm")))
sketch12.addConstraint(Sketcher.Constraint("DistanceX", 1, 3, -1, 1, Q("71.48559 mm")))
pocket6 = body.newObject("PartDesign::Pocket", "Pocket005")
pocket6.Profile = sketch12
pocket6.Length = 2.4
pocket6.Reversed = True
doc.recompute()

fillet = body.newObject("PartDesign::Fillet", "Fillet")
fillet.Base = (pocket6, edges_at(pocket6, [(-76.436, 47.965, -6.4), (-61.496, 47.965, -6.4)]))
fillet.Radius = 2

doc.recompute()
